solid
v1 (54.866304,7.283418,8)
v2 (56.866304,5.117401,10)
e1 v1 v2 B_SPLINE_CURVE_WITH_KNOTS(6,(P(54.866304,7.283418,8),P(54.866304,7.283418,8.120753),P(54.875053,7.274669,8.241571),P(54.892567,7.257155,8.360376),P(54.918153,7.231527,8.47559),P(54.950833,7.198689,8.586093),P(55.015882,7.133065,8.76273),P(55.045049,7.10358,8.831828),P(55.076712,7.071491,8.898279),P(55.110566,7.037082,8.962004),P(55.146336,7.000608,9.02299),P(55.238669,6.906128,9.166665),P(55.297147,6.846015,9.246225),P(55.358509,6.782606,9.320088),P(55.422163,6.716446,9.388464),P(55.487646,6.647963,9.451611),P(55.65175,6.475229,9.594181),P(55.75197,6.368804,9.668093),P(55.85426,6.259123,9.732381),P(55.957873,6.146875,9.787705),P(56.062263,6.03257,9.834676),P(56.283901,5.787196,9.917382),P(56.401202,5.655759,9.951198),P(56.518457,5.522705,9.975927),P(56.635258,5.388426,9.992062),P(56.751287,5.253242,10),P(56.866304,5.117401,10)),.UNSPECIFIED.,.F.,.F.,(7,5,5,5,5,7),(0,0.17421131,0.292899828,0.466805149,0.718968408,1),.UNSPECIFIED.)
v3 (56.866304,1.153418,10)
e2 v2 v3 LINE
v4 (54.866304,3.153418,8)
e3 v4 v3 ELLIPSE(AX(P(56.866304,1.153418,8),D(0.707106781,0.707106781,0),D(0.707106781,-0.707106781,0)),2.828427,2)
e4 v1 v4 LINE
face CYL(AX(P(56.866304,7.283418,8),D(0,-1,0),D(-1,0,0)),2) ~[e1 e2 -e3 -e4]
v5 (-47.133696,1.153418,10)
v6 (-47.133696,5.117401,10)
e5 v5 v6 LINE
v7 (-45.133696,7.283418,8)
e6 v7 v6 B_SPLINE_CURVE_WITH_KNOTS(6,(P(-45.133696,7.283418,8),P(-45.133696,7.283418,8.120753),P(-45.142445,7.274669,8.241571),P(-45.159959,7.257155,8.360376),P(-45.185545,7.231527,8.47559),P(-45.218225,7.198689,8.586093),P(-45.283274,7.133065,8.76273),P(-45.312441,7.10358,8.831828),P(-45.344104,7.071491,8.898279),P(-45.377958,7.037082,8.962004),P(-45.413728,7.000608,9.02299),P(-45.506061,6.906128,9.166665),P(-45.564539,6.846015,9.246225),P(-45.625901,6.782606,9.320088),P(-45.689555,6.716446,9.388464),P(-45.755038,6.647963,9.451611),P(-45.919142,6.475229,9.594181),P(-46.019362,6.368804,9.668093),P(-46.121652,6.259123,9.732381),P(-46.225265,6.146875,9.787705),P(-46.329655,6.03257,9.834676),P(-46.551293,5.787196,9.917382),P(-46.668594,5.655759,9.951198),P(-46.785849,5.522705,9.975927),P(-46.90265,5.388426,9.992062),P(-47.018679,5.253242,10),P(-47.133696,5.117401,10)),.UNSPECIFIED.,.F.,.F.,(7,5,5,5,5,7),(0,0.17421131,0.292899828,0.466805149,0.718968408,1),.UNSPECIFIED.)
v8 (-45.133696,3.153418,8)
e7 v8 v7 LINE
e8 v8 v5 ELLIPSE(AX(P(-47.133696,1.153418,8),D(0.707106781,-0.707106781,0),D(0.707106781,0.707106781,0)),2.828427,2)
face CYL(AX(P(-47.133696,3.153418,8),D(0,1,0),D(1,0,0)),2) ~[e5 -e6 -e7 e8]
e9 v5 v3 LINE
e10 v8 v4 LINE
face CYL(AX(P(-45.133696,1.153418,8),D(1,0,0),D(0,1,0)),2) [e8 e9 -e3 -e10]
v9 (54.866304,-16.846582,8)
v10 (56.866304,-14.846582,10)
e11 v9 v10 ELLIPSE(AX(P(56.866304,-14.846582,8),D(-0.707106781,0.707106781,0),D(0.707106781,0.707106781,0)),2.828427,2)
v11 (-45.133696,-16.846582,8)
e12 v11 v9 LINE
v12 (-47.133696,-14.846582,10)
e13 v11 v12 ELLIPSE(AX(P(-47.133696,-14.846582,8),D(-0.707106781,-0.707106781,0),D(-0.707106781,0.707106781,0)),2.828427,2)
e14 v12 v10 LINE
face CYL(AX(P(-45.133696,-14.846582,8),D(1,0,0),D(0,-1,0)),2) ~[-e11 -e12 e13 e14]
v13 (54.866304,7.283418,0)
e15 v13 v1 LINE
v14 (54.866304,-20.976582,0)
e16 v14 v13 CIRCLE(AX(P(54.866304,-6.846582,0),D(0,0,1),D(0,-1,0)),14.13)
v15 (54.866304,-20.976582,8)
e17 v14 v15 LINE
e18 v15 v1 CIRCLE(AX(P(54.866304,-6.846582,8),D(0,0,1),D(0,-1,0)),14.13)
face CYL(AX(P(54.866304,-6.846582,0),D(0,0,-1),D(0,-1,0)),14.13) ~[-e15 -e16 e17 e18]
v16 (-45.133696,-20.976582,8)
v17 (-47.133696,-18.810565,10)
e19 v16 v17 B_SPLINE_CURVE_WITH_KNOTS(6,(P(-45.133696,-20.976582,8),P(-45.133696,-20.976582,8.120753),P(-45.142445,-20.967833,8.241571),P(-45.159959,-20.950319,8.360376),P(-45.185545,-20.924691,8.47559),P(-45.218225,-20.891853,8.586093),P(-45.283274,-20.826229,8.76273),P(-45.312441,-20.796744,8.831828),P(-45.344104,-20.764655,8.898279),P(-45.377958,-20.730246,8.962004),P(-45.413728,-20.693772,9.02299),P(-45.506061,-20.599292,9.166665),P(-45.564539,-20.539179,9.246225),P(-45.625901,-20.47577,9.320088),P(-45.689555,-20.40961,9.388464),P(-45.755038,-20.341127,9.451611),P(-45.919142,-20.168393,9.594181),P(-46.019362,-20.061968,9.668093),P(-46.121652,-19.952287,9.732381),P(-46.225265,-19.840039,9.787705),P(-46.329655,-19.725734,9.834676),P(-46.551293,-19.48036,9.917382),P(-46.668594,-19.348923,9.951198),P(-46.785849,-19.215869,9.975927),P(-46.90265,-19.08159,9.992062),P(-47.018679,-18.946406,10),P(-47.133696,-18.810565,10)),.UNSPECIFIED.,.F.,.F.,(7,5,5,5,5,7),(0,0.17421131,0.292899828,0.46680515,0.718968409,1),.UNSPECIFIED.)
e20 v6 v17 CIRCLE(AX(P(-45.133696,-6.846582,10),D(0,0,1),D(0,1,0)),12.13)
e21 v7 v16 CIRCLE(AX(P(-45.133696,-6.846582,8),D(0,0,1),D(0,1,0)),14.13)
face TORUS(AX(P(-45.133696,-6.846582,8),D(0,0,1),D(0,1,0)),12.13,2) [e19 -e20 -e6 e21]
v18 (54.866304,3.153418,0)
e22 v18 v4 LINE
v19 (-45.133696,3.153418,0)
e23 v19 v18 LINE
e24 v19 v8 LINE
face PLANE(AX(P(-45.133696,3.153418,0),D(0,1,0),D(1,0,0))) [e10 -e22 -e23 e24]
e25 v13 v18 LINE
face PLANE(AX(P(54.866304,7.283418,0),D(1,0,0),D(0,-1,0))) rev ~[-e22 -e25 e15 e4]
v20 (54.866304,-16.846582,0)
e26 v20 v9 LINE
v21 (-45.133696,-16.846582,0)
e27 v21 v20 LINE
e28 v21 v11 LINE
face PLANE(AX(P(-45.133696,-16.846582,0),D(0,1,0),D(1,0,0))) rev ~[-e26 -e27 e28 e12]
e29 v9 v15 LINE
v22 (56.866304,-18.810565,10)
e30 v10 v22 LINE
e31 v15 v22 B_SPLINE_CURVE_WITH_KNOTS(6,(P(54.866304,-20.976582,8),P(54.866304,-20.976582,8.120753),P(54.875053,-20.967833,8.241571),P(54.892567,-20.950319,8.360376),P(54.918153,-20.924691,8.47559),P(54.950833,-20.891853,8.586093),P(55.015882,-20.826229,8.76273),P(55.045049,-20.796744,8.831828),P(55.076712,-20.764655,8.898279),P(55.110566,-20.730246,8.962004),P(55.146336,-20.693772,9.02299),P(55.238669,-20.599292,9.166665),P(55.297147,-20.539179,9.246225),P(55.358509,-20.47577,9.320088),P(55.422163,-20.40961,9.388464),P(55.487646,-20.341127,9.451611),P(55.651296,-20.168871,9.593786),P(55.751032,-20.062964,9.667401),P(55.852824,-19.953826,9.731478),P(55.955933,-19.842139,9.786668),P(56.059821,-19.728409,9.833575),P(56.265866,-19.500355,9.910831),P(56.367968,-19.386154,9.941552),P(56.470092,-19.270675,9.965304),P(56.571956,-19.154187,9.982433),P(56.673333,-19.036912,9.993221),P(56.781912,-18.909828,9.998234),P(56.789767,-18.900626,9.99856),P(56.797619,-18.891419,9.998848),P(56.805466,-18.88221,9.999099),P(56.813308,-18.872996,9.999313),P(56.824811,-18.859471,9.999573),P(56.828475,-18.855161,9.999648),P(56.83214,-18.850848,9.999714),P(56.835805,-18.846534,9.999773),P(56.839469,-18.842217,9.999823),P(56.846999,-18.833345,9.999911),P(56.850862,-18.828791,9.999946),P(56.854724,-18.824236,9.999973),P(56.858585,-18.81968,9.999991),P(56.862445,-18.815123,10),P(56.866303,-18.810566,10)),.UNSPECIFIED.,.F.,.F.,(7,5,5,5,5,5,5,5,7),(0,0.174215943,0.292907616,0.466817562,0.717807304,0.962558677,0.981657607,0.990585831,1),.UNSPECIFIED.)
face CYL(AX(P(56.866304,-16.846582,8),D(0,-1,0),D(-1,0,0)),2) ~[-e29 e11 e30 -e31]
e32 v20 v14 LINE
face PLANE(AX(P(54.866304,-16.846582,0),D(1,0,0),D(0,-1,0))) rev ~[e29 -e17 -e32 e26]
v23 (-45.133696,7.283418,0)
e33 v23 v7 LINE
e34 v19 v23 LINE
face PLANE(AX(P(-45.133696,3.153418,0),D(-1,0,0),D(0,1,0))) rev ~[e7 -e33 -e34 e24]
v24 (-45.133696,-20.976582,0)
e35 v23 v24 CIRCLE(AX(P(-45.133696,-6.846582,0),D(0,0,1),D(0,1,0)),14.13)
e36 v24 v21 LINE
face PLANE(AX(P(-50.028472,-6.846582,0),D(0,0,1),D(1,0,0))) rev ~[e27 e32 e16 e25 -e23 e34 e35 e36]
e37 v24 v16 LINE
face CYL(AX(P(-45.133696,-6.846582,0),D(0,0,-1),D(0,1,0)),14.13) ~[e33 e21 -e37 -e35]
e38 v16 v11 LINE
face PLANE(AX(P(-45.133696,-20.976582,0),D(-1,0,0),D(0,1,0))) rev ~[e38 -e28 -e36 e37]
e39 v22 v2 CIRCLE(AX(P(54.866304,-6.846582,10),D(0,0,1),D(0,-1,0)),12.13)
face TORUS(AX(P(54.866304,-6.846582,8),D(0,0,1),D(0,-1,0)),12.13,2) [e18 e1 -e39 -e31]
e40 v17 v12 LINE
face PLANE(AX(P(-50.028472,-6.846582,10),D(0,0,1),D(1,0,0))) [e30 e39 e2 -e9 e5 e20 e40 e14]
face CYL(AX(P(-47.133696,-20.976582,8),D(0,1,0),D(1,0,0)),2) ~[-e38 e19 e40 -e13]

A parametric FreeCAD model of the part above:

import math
import FreeCAD as App
import Part
import Sketcher
Q = App.Units.Quantity


def edges_at(feature, points):
    """Names of the edges that pass closest to the given points."""
    edges = feature.Shape.Edges
    near = lambda p: min(range(len(edges)), key=lambda i: edges[i].distToShape(Part.Vertex(*p))[0])
    return sorted({f"Edge{near(p) + 1}" for p in points})

doc = App.newDocument("Part")
params = doc.addObject("Spreadsheet::Sheet", "Params")
for row, (alias, value) in enumerate([
    ("sketch1_width", "100 mm"),
    ("sketch1_radius", "14.13 mm"),
    ("pad1_length", "10 mm"),
    ("fillet_radius", "2 mm"),
], start=1):
    params.set(f"A{row}", alias)
    params.set(f"B{row}", "=" + value)
    params.setAlias(f"B{row}", alias)

body = doc.addObject("PartDesign::Body", "Body")

# Sketch on XY plane
sketch1 = body.newObject("Sketcher::SketchObject", "Sketch")
sketch1.AttachmentSupport = (doc.getObject("XY_Plane"), [""])
sketch1.MapMode = "FlatFace"
sketch1.addGeometry([
    Part.ArcOfCircle(Part.Circle(App.Vector(-45.1, -6.8, 0), App.Vector(0, 0, 1), 14.1), math.radians(90), math.radians(270)),  # 0
    Part.LineSegment(App.Vector(-45.1, -21, 0), App.Vector(-45.1, -16.8, 0)),  # 1
    Part.LineSegment(App.Vector(-45.1, -16.8, 0), App.Vector(54.9, -16.8, 0)),  # 2
    Part.LineSegment(App.Vector(54.9, -16.8, 0), App.Vector(54.9, -21, 0)),  # 3
    Part.ArcOfCircle(Part.Circle(App.Vector(54.9, -6.8, 0), App.Vector(0, 0, 1), 14.1), math.radians(-90), math.radians(90)),  # 4
    Part.LineSegment(App.Vector(54.9, 7.3, 0), App.Vector(54.9, 3.2, 0)),  # 5
    Part.LineSegment(App.Vector(54.9, 3.2, 0), App.Vector(-45.1, 3.2, 0)),  # 6
    Part.LineSegment(App.Vector(-45.1, 3.2, 0), App.Vector(-45.1, 7.3, 0)),  # 7
], False)
sketch1.addConstraint([
    Sketcher.Constraint("Coincident", 0, 2, 1, 1),
    Sketcher.Constraint("Coincident", 1, 2, 2, 1),
    Sketcher.Constraint("Coincident", 2, 2, 3, 1),
    Sketcher.Constraint("Coincident", 3, 2, 4, 1),
    Sketcher.Constraint("Coincident", 4, 2, 5, 1),
    Sketcher.Constraint("Coincident", 5, 2, 6, 1),
    Sketcher.Constraint("Coincident", 6, 2, 7, 1),
    Sketcher.Constraint("Coincident", 7, 2, 0, 1),
    Sketcher.Constraint("Vertical", 1),
    Sketcher.Constraint("Horizontal", 2),
    Sketcher.Constraint("Vertical", 3),
    Sketcher.Constraint("Vertical", 5),
    Sketcher.Constraint("Horizontal", 6),
    Sketcher.Constraint("Vertical", 7),
    Sketcher.Constraint("Equal", 0, 4),
    Sketcher.Constraint("Horizontal", 0, 3, 4, 3),
    Sketcher.Constraint("Vertical", 4, 3, 2, 2),
    Sketcher.Constraint("Vertical", 3, 2, 4, 2),
    Sketcher.Constraint("Vertical", 1, 2, 6, 2),
    Sketcher.Constraint("Equal", 3, 5),
    Sketcher.Constraint("DistanceX", 2, 1, 2, 2, Q("100 mm")),
    Sketcher.Constraint("Radius", 0, Q("14.13 mm")),
    Sketcher.Constraint("DistanceX", 0, 3, 4, 3, Q("100 mm")),
    Sketcher.Constraint("DistanceY", 1, 2, 0, 3, Q("10 mm")),
    Sketcher.Constraint("DistanceY", 0, 3, -1, 1, Q("6.846582 mm")),
    Sketcher.Constraint("DistanceX", 0, 3, -1, 1, Q("45.133696 mm")),
])
sketch1.setExpression("Constraints[20]", "Params.sketch1_width")
sketch1.setExpression("Constraints[21]", "Params.sketch1_radius")
pad1 = body.newObject("PartDesign::Pad", "Pad")
pad1.Profile = sketch1
pad1.setExpression("Length", "Params.pad1_length")
doc.recompute()

fillet = body.newObject("PartDesign::Fillet", "Fillet")
fillet.Base = (pad1, edges_at(pad1, [
    (-45.134, 5.218, 10),
    (-45.134, -18.912, 10),
    (-59.264, -6.847, 10),
    (4.866, 3.153, 10),
    (4.866, -16.847, 10),
    (68.996, -6.847, 10),
    (54.866, 5.218, 10),
    (54.866, -18.912, 10),
]))
fillet.setExpression("Radius", "Params.fillet_radius")

doc.recompute()
